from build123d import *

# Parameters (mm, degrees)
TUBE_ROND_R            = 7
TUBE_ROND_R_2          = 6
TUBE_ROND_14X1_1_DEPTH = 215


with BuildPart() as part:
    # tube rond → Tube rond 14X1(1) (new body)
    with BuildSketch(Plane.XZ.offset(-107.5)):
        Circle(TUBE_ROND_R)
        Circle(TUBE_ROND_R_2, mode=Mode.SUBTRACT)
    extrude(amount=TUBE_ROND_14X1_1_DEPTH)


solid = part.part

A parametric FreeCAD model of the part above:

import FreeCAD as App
import Part
import Sketcher

doc = App.newDocument("Part")
body = doc.addObject("PartDesign::Body", "Body")

# Sketch on XZ plane
sketch1 = body.newObject("Sketcher::SketchObject", "Sketch")
sketch1.AttachmentSupport = (doc.getObject("XZ_Plane"), [""])
sketch1.MapMode = "FlatFace"
sketch1.AttachmentOffset = App.Placement(App.Vector(0, 0, -107.5), App.Rotation())
sketch1.addGeometry([
    Part.Circle(App.Vector(0, 0, 0), App.Vector(0, 0, 1), 7),
    Part.Circle(App.Vector(0, 0, 0), App.Vector(0, 0, 1), 6),
], False)
sketch1.addConstraint([
    Sketcher.Constraint("Coincident", 0, 3, -1, 1),
    Sketcher.Constraint("Coincident", 1, 3, -1, 1),
    Sketcher.Constraint("Diameter", 0, 14.0),
    Sketcher.Constraint("Diameter", 1, 12.0),
])
pad1 = body.newObject("PartDesign::Pad", "Pad")
pad1.Profile = sketch1
pad1.Length = 215

doc.recompute()
